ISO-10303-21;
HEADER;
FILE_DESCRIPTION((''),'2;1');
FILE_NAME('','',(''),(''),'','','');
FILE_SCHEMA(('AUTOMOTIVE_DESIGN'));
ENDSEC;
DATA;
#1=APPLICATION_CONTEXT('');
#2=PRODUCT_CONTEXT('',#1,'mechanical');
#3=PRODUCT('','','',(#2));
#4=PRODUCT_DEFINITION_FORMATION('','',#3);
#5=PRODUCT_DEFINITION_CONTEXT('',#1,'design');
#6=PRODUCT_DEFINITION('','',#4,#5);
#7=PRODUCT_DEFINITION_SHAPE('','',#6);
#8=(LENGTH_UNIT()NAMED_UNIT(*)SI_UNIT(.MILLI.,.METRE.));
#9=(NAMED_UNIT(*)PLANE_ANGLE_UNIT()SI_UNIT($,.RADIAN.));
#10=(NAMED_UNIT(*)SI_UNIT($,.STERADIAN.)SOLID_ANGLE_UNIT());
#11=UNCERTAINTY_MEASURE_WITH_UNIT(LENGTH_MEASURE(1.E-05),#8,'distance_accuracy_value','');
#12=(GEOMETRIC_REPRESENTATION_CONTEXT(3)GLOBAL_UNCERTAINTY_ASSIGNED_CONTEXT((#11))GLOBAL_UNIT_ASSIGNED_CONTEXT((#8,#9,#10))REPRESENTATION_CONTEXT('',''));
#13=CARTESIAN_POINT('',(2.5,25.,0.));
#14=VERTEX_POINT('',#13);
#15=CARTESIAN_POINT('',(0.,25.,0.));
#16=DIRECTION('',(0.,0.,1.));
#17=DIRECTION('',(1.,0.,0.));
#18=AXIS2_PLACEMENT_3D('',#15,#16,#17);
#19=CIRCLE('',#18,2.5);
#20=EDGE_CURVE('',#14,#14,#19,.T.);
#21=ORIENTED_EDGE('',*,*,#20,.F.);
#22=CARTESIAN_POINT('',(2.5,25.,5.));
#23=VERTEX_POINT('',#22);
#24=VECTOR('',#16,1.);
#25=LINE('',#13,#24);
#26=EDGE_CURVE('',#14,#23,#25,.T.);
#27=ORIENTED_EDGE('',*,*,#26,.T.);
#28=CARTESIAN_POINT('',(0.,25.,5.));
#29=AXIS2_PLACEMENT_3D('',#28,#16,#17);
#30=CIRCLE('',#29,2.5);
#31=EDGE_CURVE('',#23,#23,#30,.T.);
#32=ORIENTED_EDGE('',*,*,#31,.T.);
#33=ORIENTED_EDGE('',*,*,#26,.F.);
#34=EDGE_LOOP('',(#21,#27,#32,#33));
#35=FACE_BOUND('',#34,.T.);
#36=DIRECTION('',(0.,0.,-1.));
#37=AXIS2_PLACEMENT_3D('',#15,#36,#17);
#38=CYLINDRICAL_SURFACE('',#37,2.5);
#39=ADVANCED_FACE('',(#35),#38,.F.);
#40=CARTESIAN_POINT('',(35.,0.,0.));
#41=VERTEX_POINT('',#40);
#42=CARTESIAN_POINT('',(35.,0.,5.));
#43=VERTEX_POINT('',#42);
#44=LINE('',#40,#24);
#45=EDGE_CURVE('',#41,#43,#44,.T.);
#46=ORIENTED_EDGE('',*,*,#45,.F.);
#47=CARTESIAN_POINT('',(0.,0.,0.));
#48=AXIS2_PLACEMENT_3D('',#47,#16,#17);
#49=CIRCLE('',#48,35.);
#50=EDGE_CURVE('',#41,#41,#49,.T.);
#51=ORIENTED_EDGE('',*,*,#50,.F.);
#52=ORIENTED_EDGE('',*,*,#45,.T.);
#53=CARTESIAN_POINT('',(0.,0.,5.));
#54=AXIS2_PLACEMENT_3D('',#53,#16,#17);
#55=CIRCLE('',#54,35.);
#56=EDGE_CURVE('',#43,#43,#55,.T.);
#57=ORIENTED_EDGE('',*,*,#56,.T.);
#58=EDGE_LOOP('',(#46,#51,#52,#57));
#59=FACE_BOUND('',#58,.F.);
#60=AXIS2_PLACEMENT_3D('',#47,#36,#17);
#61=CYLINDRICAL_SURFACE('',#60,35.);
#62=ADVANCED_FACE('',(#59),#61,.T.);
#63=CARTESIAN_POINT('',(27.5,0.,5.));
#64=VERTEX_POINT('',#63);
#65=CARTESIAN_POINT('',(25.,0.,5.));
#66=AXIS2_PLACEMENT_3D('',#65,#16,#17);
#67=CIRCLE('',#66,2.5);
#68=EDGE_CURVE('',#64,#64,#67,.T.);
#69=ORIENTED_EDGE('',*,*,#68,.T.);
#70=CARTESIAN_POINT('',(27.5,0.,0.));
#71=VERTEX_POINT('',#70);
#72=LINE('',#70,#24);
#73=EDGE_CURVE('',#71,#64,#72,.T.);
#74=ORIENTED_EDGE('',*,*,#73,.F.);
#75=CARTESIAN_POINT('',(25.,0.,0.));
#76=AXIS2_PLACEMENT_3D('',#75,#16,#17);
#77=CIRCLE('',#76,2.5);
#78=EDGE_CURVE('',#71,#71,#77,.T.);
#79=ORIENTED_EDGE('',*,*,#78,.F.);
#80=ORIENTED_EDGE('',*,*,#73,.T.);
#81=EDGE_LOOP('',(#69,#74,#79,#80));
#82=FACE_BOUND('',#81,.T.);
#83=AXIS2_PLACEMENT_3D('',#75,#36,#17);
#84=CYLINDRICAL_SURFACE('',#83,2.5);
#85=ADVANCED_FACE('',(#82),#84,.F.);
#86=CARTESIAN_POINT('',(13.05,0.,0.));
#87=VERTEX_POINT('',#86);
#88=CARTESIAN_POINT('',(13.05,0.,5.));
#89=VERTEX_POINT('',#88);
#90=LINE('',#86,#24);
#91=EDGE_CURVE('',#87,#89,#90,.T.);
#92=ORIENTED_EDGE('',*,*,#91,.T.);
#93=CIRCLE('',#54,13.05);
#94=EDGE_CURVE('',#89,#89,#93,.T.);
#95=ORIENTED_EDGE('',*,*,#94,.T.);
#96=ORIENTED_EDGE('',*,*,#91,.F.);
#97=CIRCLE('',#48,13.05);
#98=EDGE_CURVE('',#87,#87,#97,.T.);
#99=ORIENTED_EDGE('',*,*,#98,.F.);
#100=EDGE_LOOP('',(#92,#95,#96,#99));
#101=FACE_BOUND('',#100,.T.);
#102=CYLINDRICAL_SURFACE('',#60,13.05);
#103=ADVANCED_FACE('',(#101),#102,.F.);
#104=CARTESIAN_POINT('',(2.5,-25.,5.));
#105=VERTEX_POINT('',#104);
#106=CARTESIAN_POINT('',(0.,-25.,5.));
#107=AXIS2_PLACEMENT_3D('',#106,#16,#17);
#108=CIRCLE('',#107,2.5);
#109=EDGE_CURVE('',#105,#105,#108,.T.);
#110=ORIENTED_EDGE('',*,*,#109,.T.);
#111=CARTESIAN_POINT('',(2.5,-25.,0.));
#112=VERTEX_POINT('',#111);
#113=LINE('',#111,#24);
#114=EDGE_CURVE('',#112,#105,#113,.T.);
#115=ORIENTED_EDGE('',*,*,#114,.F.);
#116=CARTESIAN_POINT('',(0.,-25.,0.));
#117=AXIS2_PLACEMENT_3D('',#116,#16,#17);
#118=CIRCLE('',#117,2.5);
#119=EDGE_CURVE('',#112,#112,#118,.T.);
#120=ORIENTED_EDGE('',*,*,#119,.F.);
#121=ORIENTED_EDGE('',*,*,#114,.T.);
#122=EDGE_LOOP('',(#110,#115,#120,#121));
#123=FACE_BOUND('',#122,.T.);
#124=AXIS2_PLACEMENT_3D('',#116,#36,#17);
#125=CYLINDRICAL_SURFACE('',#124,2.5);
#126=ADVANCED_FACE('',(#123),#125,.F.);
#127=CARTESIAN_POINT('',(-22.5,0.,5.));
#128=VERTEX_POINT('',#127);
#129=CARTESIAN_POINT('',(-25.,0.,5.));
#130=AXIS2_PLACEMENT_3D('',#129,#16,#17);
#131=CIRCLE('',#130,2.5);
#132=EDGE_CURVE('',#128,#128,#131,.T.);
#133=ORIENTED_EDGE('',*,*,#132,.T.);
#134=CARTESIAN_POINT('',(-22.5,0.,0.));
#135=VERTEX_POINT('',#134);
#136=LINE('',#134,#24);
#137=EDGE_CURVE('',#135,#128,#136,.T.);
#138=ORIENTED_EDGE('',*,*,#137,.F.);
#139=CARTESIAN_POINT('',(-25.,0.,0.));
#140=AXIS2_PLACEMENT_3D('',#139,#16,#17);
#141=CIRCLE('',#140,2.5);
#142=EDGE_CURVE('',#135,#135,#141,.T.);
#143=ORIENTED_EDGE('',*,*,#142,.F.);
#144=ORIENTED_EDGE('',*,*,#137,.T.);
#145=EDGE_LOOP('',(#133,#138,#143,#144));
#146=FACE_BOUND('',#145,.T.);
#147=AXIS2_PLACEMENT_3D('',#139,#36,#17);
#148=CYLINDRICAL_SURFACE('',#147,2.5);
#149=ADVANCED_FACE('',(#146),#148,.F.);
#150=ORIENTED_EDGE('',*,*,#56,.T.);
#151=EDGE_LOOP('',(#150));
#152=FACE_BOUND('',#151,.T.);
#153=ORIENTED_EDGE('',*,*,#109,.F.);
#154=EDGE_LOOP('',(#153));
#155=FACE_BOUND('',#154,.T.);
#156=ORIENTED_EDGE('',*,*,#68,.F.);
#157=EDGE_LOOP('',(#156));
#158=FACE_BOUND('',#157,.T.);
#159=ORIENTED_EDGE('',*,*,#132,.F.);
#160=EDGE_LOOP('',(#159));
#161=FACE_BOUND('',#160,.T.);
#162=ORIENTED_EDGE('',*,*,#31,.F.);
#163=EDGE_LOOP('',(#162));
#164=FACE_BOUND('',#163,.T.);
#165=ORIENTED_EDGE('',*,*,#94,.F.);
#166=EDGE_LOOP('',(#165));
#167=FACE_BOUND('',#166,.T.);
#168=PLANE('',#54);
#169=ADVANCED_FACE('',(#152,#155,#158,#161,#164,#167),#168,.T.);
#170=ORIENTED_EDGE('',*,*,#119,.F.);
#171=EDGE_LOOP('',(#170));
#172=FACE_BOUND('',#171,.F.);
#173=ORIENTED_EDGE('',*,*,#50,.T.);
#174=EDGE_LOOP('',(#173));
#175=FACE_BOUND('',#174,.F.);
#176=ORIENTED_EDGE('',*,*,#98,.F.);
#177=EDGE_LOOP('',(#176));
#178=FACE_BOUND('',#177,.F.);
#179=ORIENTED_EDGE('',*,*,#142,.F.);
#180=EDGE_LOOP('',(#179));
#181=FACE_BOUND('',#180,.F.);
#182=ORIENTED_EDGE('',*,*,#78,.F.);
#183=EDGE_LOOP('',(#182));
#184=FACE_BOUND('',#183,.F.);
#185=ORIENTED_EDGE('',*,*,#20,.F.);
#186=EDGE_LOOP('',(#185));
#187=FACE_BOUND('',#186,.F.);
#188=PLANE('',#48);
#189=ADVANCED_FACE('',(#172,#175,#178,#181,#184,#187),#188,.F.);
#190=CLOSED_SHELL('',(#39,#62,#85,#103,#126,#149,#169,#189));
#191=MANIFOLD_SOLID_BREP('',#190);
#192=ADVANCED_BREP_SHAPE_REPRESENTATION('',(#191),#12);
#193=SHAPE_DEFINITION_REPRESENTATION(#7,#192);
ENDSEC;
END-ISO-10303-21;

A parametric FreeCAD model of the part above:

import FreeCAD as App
import Part
import Sketcher

doc = App.newDocument("Part")
body = doc.addObject("PartDesign::Body", "Body")

# Sketch on XY plane
sketch1 = body.newObject("Sketcher::SketchObject", "Sketch")
sketch1.AttachmentSupport = (doc.getObject("XY_Plane"), [""])
sketch1.MapMode = "FlatFace"
sketch1.addGeometry([
    Part.Circle(App.Vector(0, 0, 0), App.Vector(0, 0, 1), 35),  # 0
    Part.Circle(App.Vector(0, -25, 0), App.Vector(0, 0, 1), 2.5),  # 1
    Part.Circle(App.Vector(-25, 0, 0), App.Vector(0, 0, 1), 2.5),  # 2
    Part.Circle(App.Vector(0, 0, 0), App.Vector(0, 0, 1), 13.1),  # 3
    Part.Circle(App.Vector(25, 0, 0), App.Vector(0, 0, 1), 2.5),  # 4
    Part.Circle(App.Vector(0, 25, 0), App.Vector(0, 0, 1), 2.5),  # 5
], False)
sketch1.addConstraint([
    Sketcher.Constraint("Coincident", 0, 3, -1, 1),
    Sketcher.Constraint("Coincident", 3, 3, -1, 1),
    Sketcher.Constraint("Equal", 1, 2),
    Sketcher.Constraint("Equal", 2, 4),
    Sketcher.Constraint("Equal", 4, 5),
    Sketcher.Constraint("Symmetric", 2, 3, 4, 3, -1, 1),
    Sketcher.Constraint("Symmetric", 1, 3, 5, 3, -1, 1),
    Sketcher.Constraint("PointOnObject", 1, 3, -2),
    Sketcher.Constraint("PointOnObject", 2, 3, -1),
    Sketcher.Constraint("Diameter", 0, 70.0),
    Sketcher.Constraint("Diameter", 1, 5.0),
    Sketcher.Constraint("Diameter", 3, 26.1),
    Sketcher.Constraint("DistanceX", 2, 3, 4, 3, 50.0),
    Sketcher.Constraint("DistanceY", 1, 3, 5, 3, 50.0),
])
pad1 = body.newObject("PartDesign::Pad", "Pad")
pad1.Profile = sketch1
pad1.Length = 5

doc.recompute()
